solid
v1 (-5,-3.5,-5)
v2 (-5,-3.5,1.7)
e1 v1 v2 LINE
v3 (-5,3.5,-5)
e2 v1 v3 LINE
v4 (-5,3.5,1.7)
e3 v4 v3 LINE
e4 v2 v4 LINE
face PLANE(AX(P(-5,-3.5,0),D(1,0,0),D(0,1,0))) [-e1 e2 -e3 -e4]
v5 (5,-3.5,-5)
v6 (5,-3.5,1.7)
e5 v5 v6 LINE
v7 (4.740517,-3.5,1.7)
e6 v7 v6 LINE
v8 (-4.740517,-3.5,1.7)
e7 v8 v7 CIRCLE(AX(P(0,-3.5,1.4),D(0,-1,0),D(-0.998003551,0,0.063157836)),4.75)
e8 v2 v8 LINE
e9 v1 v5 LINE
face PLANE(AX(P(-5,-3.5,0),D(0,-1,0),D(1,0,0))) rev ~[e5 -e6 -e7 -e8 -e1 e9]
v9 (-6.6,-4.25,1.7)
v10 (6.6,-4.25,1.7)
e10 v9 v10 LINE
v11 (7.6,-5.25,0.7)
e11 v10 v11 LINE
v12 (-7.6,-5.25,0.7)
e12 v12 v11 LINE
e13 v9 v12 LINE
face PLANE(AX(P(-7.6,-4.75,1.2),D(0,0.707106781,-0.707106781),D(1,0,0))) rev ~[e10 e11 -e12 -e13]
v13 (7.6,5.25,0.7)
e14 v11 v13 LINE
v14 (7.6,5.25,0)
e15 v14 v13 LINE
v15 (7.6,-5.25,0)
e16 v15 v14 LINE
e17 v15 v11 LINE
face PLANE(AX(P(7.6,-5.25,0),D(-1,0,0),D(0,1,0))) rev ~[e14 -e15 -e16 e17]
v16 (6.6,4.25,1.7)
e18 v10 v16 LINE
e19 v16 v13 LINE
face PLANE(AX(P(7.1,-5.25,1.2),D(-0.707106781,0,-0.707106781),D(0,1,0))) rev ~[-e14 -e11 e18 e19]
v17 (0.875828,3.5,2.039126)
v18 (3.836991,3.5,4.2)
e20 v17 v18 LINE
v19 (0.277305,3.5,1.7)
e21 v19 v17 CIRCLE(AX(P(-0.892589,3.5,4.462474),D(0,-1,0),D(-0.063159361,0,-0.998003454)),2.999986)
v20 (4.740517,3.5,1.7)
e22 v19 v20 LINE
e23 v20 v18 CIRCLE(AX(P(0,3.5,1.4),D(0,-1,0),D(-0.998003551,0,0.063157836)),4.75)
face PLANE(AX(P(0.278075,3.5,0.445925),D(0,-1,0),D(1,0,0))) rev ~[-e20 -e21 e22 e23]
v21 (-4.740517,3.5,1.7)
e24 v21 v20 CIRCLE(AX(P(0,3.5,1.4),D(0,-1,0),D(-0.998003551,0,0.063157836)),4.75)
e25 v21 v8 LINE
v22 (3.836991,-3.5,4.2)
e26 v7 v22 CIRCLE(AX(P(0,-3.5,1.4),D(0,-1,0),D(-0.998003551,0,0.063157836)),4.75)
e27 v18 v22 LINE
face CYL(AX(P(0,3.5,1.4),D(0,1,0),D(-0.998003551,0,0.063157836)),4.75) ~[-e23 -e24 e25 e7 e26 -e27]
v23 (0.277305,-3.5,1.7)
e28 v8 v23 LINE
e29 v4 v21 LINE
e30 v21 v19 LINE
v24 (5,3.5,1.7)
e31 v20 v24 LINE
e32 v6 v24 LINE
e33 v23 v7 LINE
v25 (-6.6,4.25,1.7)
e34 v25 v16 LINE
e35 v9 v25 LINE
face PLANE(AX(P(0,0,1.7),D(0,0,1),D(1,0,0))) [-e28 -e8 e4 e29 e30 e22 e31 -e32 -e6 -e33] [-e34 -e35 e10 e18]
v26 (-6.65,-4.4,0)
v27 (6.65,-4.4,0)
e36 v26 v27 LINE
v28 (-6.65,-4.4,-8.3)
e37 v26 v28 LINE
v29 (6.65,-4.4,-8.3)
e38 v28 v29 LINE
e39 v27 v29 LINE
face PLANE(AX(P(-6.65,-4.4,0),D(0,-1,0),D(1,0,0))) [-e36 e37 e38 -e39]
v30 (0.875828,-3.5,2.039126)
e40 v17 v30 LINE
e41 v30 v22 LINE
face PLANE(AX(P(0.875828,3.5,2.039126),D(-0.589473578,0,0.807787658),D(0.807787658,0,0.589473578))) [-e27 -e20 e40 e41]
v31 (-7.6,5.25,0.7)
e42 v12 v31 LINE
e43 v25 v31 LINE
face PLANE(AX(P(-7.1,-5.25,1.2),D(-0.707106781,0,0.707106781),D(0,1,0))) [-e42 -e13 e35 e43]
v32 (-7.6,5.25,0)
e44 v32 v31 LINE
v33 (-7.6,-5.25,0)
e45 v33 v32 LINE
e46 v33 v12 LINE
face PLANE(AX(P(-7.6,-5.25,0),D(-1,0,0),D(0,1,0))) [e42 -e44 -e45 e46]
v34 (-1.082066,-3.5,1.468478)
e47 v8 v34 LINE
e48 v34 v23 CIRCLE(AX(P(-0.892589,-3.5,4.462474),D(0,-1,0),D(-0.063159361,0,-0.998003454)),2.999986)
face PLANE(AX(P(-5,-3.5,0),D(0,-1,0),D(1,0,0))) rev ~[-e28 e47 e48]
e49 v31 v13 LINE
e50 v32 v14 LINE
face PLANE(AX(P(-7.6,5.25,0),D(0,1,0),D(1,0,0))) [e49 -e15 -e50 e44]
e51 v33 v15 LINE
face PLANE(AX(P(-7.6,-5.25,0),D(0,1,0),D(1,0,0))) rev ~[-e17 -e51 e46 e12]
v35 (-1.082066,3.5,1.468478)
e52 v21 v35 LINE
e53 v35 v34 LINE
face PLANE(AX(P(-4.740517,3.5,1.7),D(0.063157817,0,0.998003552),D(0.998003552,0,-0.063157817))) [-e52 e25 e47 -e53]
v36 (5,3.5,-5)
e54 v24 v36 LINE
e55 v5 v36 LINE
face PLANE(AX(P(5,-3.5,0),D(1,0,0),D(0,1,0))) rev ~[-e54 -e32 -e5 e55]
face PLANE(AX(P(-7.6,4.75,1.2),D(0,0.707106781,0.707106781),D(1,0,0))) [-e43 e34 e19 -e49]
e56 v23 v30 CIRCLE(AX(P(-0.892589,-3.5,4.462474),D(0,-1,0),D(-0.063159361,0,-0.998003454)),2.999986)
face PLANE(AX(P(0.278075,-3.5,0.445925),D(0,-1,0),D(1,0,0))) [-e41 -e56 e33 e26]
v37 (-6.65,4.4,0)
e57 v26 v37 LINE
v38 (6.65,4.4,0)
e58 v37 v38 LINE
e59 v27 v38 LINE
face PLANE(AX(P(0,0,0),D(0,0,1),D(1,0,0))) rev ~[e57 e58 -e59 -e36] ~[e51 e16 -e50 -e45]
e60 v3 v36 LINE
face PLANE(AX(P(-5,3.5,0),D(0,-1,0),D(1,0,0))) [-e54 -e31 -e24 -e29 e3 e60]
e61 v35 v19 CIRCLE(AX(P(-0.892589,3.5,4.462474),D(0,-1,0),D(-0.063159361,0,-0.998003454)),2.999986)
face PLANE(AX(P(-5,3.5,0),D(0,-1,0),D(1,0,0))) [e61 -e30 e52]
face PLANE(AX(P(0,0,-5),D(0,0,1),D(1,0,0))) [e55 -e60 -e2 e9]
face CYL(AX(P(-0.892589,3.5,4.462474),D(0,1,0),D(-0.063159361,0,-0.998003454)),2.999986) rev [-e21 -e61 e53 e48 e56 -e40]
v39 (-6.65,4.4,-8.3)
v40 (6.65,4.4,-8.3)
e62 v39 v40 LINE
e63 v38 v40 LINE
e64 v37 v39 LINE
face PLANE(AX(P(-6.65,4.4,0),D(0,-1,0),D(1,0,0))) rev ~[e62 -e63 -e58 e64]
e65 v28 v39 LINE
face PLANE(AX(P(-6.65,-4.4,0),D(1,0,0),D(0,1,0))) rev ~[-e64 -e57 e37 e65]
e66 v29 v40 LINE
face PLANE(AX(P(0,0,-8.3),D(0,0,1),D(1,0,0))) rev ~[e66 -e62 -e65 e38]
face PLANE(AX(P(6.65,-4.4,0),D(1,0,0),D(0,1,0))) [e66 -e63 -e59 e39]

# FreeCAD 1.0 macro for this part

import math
import FreeCAD as App
import Part
import Sketcher

V = App.Vector


def edges_at(feature, points):
    """Names of the edges that pass closest to the given points."""
    edges = feature.Shape.Edges
    near = lambda p: min(range(len(edges)), key=lambda i: edges[i].distToShape(Part.Vertex(*p))[0])
    return sorted({f"Edge{near(p) + 1}" for p in points})

doc = App.newDocument("Part")
body = doc.addObject("PartDesign::Body", "Body")

# Sketch on XY plane
sketch1 = body.newObject("Sketcher::SketchObject", "Sketch")
sketch1.AttachmentSupport = (doc.getObject("XY_Plane"), [""])
sketch1.MapMode = "FlatFace"
sketch1.addGeometry(Part.LineSegment(V(-8, 5, 0), V(-8, -5, 0)), False)
sketch1.addGeometry(Part.LineSegment(V(-8, -5, 0), V(8, -5, 0)), False)
sketch1.addGeometry(Part.LineSegment(V(8, -5, 0), V(8, 5, 0)), False)
sketch1.addGeometry(Part.LineSegment(V(8, 5, 0), V(-8, 5, 0)), False)
sketch1.addConstraint(Sketcher.Constraint("Coincident", 0, 2, 1, 1))
sketch1.addConstraint(Sketcher.Constraint("Coincident", 1, 2, 2, 1))
sketch1.addConstraint(Sketcher.Constraint("Coincident", 2, 2, 3, 1))
sketch1.addConstraint(Sketcher.Constraint("Coincident", 3, 2, 0, 1))
sketch1.addConstraint(Sketcher.Constraint("Vertical", 0))
sketch1.addConstraint(Sketcher.Constraint("Horizontal", 1))
sketch1.addConstraint(Sketcher.Constraint("Vertical", 2))
sketch1.addConstraint(Sketcher.Constraint("Horizontal", 3))
sketch1.addConstraint(Sketcher.Constraint("Symmetric", 0, 2, 2, 2, -1, 1))
sketch1.addConstraint(Sketcher.Constraint("DistanceX", 1, 1, 1, 2, 15.2))
sketch1.addConstraint(Sketcher.Constraint("DistanceY", 0, 2, 0, 1, 10.5))
pad1 = body.newObject("PartDesign::Pad", "Pad")
pad1.Profile = sketch1
pad1.Length = 1.7

# Sketch on XY plane
sketch2 = body.newObject("Sketcher::SketchObject", "Sketch001")
sketch2.AttachmentSupport = (doc.getObject("XY_Plane"), [""])
sketch2.MapMode = "FlatFace"
sketch2.addGeometry(Part.LineSegment(V(-7, 4, 0), V(-7, -4, 0)), False)
sketch2.addGeometry(Part.LineSegment(V(-7, -4, 0), V(7, -4, 0)), False)
sketch2.addGeometry(Part.LineSegment(V(7, -4, 0), V(7, 4, 0)), False)
sketch2.addGeometry(Part.LineSegment(V(7, 4, 0), V(-7, 4, 0)), False)
sketch2.addConstraint(Sketcher.Constraint("Coincident", 0, 2, 1, 1))
sketch2.addConstraint(Sketcher.Constraint("Coincident", 1, 2, 2, 1))
sketch2.addConstraint(Sketcher.Constraint("Coincident", 2, 2, 3, 1))
sketch2.addConstraint(Sketcher.Constraint("Coincident", 3, 2, 0, 1))
sketch2.addConstraint(Sketcher.Constraint("Vertical", 0))
sketch2.addConstraint(Sketcher.Constraint("Horizontal", 1))
sketch2.addConstraint(Sketcher.Constraint("Vertical", 2))
sketch2.addConstraint(Sketcher.Constraint("Horizontal", 3))
sketch2.addConstraint(Sketcher.Constraint("Symmetric", 0, 2, 2, 2, -1, 1))
sketch2.addConstraint(Sketcher.Constraint("DistanceX", 1, 1, 1, 2, 13.3))
sketch2.addConstraint(Sketcher.Constraint("DistanceY", 0, 2, 0, 1, 8.8))
pad2 = body.newObject("PartDesign::Pad", "Pad001")
pad2.Profile = sketch2
pad2.Length = 8.3
pad2.Reversed = True

# Sketch on XY plane
sketch3 = body.newObject("Sketcher::SketchObject", "Sketch002")
sketch3.AttachmentSupport = (doc.getObject("XY_Plane"), [""])
sketch3.MapMode = "FlatFace"
sketch3.addGeometry(Part.LineSegment(V(-5, 4, 0), V(-5, -4, 0)), False)
sketch3.addGeometry(Part.LineSegment(V(-5, -4, 0), V(5, -4, 0)), False)
sketch3.addGeometry(Part.LineSegment(V(5, -4, 0), V(5, 4, 0)), False)
sketch3.addGeometry(Part.LineSegment(V(5, 4, 0), V(-5, 4, 0)), False)
sketch3.addConstraint(Sketcher.Constraint("Coincident", 0, 2, 1, 1))
sketch3.addConstraint(Sketcher.Constraint("Coincident", 1, 2, 2, 1))
sketch3.addConstraint(Sketcher.Constraint("Coincident", 2, 2, 3, 1))
sketch3.addConstraint(Sketcher.Constraint("Coincident", 3, 2, 0, 1))
sketch3.addConstraint(Sketcher.Constraint("Vertical", 0))
sketch3.addConstraint(Sketcher.Constraint("Horizontal", 1))
sketch3.addConstraint(Sketcher.Constraint("Vertical", 2))
sketch3.addConstraint(Sketcher.Constraint("Horizontal", 3))
sketch3.addConstraint(Sketcher.Constraint("Symmetric", 0, 2, 2, 2, -1, 1))
sketch3.addConstraint(Sketcher.Constraint("DistanceX", 1, 1, 1, 2, 10.0))
sketch3.addConstraint(Sketcher.Constraint("DistanceY", 0, 2, 0, 1, 7.0))
pocket1 = body.newObject("PartDesign::Pocket", "Pocket")
pocket1.Profile = sketch3
pocket1.Length = 10
pocket1.Midplane = True

# Sketch on XZ plane
sketch4 = body.newObject("Sketcher::SketchObject", "Sketch003")
sketch4.AttachmentSupport = (doc.getObject("XZ_Plane"), [""])
sketch4.MapMode = "FlatFace"
sketch4.AttachmentOffset = App.Placement(V(0, 0, -3.5), App.Rotation())
sketch4.addGeometry(Part.ArcOfCircle(Part.Circle(V(0, 1.4, 0), V(0, 0, 1), 4.7), math.radians(176), math.radians(396)), False)
sketch4.addGeometry(Part.LineSegment(V(3.8, 4.2, 0), V(0.9, 2, 0)), False)
sketch4.addGeometry(Part.ArcOfCircle(Part.Circle(V(-0.9, 4.5, 0), V(0, 0, 1), 3), math.radians(-94), math.radians(-54)), False)
sketch4.addGeometry(Part.LineSegment(V(-1.1, 1.5, 0), V(-4.7, 1.7, 0)), False)
sketch4.addConstraint(Sketcher.Constraint("Coincident", 0, 2, 1, 1))
sketch4.addConstraint(Sketcher.Constraint("Tangent", 1, 2, 2, 2))
sketch4.addConstraint(Sketcher.Constraint("Tangent", 2, 1, 3, 1))
sketch4.addConstraint(Sketcher.Constraint("Coincident", 3, 2, 0, 1))
sketch4.addConstraint(Sketcher.Constraint("PointOnObject", 0, 3, -2))
sketch4.addConstraint(Sketcher.Constraint("Equal", 1, 3))
sketch4.addConstraint(Sketcher.Constraint("Radius", 0, 4.75))
sketch4.addConstraint(Sketcher.Constraint("DistanceY", -1, 1, 0, 3, 1.4))
sketch4.addConstraint(Sketcher.Constraint("DistanceY", -1, 1, 0, 2, 4.2))
sketch4.addConstraint(Sketcher.Constraint("DistanceY", -1, 1, 3, 2, 1.7))
sketch4.addConstraint(Sketcher.Constraint("Radius", 2, 2.999986))
sketch4.addConstraint(Sketcher.Constraint("Distance", 1, 3.665769))
pad3 = body.newObject("PartDesign::Pad", "Pad002")
pad3.Profile = sketch4
pad3.Length = 7
doc.recompute()

chamfer = body.newObject("PartDesign::Chamfer", "Chamfer")
chamfer.Base = (pad3, edges_at(pad3, [
    (-7.6, 0, 1.7),
    (0, 5.25, 1.7),
    (7.6, 0, 1.7),
    (0, -5.25, 1.7),
]))
chamfer.Size = 1

doc.recompute()
